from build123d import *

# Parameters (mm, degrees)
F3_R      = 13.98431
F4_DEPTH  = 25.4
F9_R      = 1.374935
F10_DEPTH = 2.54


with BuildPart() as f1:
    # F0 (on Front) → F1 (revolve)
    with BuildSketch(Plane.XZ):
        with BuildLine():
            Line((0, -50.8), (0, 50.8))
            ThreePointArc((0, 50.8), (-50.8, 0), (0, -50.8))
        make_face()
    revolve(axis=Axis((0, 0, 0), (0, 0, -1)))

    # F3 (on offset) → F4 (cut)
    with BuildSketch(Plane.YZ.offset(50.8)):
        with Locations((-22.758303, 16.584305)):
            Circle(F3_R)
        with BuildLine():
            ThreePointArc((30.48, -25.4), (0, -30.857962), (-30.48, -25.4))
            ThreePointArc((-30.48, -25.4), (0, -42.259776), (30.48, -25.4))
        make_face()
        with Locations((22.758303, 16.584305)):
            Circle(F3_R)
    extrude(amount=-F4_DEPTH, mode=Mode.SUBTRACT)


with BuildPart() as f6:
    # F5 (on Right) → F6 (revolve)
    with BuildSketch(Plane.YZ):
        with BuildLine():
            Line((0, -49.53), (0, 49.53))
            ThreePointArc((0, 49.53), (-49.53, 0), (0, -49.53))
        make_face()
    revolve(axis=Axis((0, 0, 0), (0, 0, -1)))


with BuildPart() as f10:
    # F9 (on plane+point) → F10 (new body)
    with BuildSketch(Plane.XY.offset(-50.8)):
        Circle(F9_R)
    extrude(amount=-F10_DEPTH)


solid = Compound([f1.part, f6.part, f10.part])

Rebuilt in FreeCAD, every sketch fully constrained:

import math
import FreeCAD as App
import Part
import Sketcher
from FreeCAD import Vector
Q = App.Units.Quantity

doc = App.newDocument("Part")
body = doc.addObject("PartDesign::Body", "Body")

# Sketch on XZ plane
sketch1 = body.newObject("Sketcher::SketchObject", "Sketch")
sketch1.AttachmentSupport = (doc.getObject("XZ_Plane"), [""])
sketch1.MapMode = "FlatFace"
sketch1.addGeometry([
    Part.LineSegment(Vector(0, -51, 0), Vector(0, 51, 0)),
    Part.ArcOfCircle(Part.Circle(Vector(0, 0, 0), Vector(0, 0, 1), 51), math.radians(90), math.radians(270)),
], False)
sketch1.addConstraint([
    Sketcher.Constraint("Coincident", 0, 1, 1, 2),
    Sketcher.Constraint("Coincident", 1, 1, 0, 2),
    Sketcher.Constraint("Vertical", 0),
    Sketcher.Constraint("Coincident", 1, 3, -1, 1),
    Sketcher.Constraint("PointOnObject", 0, 1, -2),
    Sketcher.Constraint("Radius", 1, Q("2 in")),
])
revolution = body.newObject("PartDesign::Revolution", "Revolution")
revolution.Profile = sketch1
revolution.ReferenceAxis = (sketch1, ["V_Axis"])
revolution.Angle = 360

# Sketch on YZ plane
sketch2 = body.newObject("Sketcher::SketchObject", "Sketch001")
sketch2.AttachmentSupport = (doc.getObject("YZ_Plane"), [""])
sketch2.MapMode = "FlatFace"
sketch2.AttachmentOffset = App.Placement(Vector(0, 0, 2 * 25.4), App.Rotation())
sketch2.addGeometry([
    Part.Circle(Vector(-23, 17, 0), Vector(0, 0, 1), 14),
    Part.ArcOfCircle(Part.Circle(Vector(0, 57, 0), Vector(0, 0, 1), 88), math.radians(-110), math.radians(-70)),
    Part.ArcOfCircle(Part.Circle(Vector(0, -6, 0), Vector(0, 0, 1), 36), math.radians(-148), math.radians(-32)),
    Part.Circle(Vector(23, 17, 0), Vector(0, 0, 1), 14),
], False)
sketch2.addConstraint([
    Sketcher.Constraint("Coincident", 1, 1, 2, 1),
    Sketcher.Constraint("Coincident", 2, 2, 1, 2),
    Sketcher.Constraint("Equal", 0, 3),
    Sketcher.Constraint("Symmetric", 0, 3, 3, 3, -2),
    Sketcher.Constraint("Symmetric", 1, 1, 2, 2, -2),
    Sketcher.Constraint("DistanceY", 1, 1, -1, 1, Q("1 in")),
    Sketcher.Constraint("DistanceX", 1, 1, -1, 1, Q("1.2 in")),
    Sketcher.Constraint("Diameter", 0, Q("27.96862 mm")),
    Sketcher.Constraint("Radius", 2, Q("35.981571 mm")),
    Sketcher.Constraint("Radius", 1, Q("87.836792 mm")),
    Sketcher.Constraint("DistanceY", 2, 3, 0, 3, Q("22.86251 mm")),
    Sketcher.Constraint("DistanceX", 0, 3, -1, 1, Q("22.758303 mm")),
])
pocket1 = body.newObject("PartDesign::Pocket", "Pocket")
pocket1.Profile = sketch2
pocket1.Length = Q("1 in")
body2 = doc.addObject("PartDesign::Body", "Body001")

# Sketch on YZ plane
sketch3 = body2.newObject("Sketcher::SketchObject", "Sketch002")
sketch3.AttachmentSupport = (doc.getObject("YZ_Plane001"), [""])
sketch3.MapMode = "FlatFace"
sketch3.addGeometry([
    Part.LineSegment(Vector(0, -50, 0), Vector(0, 50, 0)),
    Part.ArcOfCircle(Part.Circle(Vector(0, 0, 0), Vector(0, 0, 1), 50), math.radians(90), math.radians(270)),
], False)
sketch3.addConstraint([
    Sketcher.Constraint("Coincident", 0, 1, 1, 2),
    Sketcher.Constraint("Coincident", 1, 1, 0, 2),
    Sketcher.Constraint("Vertical", 0),
    Sketcher.Constraint("Coincident", 1, 3, -1, 1),
    Sketcher.Constraint("PointOnObject", 0, 1, -2),
    Sketcher.Constraint("Radius", 1, Q("1.95 in")),
])
revolution2 = body2.newObject("PartDesign::Revolution", "Revolution001")
revolution2.Profile = sketch3
revolution2.ReferenceAxis = (sketch3, ["V_Axis"])
revolution2.Angle = 360
body3 = doc.addObject("PartDesign::Body", "Body002")

# Sketch on XY plane
sketch4 = body3.newObject("Sketcher::SketchObject", "Sketch003")
sketch4.AttachmentSupport = (doc.getObject("XY_Plane002"), [""])
sketch4.MapMode = "FlatFace"
sketch4.AttachmentOffset = App.Placement(Vector(0, 0, -2 * 25.4), App.Rotation())
sketch4.addGeometry(Part.Circle(Vector(0, 0, 0), Vector(0, 0, 1), 1.4), False)
sketch4.addConstraint([
    Sketcher.Constraint("Coincident", 0, 3, -1, 1),
    Sketcher.Constraint("Diameter", 0, Q("2.74987 mm")),
])
pad1 = body3.newObject("PartDesign::Pad", "Pad")
pad1.Profile = sketch4
pad1.Length = Q("0.1 in")
pad1.Reversed = True

doc.recompute()
